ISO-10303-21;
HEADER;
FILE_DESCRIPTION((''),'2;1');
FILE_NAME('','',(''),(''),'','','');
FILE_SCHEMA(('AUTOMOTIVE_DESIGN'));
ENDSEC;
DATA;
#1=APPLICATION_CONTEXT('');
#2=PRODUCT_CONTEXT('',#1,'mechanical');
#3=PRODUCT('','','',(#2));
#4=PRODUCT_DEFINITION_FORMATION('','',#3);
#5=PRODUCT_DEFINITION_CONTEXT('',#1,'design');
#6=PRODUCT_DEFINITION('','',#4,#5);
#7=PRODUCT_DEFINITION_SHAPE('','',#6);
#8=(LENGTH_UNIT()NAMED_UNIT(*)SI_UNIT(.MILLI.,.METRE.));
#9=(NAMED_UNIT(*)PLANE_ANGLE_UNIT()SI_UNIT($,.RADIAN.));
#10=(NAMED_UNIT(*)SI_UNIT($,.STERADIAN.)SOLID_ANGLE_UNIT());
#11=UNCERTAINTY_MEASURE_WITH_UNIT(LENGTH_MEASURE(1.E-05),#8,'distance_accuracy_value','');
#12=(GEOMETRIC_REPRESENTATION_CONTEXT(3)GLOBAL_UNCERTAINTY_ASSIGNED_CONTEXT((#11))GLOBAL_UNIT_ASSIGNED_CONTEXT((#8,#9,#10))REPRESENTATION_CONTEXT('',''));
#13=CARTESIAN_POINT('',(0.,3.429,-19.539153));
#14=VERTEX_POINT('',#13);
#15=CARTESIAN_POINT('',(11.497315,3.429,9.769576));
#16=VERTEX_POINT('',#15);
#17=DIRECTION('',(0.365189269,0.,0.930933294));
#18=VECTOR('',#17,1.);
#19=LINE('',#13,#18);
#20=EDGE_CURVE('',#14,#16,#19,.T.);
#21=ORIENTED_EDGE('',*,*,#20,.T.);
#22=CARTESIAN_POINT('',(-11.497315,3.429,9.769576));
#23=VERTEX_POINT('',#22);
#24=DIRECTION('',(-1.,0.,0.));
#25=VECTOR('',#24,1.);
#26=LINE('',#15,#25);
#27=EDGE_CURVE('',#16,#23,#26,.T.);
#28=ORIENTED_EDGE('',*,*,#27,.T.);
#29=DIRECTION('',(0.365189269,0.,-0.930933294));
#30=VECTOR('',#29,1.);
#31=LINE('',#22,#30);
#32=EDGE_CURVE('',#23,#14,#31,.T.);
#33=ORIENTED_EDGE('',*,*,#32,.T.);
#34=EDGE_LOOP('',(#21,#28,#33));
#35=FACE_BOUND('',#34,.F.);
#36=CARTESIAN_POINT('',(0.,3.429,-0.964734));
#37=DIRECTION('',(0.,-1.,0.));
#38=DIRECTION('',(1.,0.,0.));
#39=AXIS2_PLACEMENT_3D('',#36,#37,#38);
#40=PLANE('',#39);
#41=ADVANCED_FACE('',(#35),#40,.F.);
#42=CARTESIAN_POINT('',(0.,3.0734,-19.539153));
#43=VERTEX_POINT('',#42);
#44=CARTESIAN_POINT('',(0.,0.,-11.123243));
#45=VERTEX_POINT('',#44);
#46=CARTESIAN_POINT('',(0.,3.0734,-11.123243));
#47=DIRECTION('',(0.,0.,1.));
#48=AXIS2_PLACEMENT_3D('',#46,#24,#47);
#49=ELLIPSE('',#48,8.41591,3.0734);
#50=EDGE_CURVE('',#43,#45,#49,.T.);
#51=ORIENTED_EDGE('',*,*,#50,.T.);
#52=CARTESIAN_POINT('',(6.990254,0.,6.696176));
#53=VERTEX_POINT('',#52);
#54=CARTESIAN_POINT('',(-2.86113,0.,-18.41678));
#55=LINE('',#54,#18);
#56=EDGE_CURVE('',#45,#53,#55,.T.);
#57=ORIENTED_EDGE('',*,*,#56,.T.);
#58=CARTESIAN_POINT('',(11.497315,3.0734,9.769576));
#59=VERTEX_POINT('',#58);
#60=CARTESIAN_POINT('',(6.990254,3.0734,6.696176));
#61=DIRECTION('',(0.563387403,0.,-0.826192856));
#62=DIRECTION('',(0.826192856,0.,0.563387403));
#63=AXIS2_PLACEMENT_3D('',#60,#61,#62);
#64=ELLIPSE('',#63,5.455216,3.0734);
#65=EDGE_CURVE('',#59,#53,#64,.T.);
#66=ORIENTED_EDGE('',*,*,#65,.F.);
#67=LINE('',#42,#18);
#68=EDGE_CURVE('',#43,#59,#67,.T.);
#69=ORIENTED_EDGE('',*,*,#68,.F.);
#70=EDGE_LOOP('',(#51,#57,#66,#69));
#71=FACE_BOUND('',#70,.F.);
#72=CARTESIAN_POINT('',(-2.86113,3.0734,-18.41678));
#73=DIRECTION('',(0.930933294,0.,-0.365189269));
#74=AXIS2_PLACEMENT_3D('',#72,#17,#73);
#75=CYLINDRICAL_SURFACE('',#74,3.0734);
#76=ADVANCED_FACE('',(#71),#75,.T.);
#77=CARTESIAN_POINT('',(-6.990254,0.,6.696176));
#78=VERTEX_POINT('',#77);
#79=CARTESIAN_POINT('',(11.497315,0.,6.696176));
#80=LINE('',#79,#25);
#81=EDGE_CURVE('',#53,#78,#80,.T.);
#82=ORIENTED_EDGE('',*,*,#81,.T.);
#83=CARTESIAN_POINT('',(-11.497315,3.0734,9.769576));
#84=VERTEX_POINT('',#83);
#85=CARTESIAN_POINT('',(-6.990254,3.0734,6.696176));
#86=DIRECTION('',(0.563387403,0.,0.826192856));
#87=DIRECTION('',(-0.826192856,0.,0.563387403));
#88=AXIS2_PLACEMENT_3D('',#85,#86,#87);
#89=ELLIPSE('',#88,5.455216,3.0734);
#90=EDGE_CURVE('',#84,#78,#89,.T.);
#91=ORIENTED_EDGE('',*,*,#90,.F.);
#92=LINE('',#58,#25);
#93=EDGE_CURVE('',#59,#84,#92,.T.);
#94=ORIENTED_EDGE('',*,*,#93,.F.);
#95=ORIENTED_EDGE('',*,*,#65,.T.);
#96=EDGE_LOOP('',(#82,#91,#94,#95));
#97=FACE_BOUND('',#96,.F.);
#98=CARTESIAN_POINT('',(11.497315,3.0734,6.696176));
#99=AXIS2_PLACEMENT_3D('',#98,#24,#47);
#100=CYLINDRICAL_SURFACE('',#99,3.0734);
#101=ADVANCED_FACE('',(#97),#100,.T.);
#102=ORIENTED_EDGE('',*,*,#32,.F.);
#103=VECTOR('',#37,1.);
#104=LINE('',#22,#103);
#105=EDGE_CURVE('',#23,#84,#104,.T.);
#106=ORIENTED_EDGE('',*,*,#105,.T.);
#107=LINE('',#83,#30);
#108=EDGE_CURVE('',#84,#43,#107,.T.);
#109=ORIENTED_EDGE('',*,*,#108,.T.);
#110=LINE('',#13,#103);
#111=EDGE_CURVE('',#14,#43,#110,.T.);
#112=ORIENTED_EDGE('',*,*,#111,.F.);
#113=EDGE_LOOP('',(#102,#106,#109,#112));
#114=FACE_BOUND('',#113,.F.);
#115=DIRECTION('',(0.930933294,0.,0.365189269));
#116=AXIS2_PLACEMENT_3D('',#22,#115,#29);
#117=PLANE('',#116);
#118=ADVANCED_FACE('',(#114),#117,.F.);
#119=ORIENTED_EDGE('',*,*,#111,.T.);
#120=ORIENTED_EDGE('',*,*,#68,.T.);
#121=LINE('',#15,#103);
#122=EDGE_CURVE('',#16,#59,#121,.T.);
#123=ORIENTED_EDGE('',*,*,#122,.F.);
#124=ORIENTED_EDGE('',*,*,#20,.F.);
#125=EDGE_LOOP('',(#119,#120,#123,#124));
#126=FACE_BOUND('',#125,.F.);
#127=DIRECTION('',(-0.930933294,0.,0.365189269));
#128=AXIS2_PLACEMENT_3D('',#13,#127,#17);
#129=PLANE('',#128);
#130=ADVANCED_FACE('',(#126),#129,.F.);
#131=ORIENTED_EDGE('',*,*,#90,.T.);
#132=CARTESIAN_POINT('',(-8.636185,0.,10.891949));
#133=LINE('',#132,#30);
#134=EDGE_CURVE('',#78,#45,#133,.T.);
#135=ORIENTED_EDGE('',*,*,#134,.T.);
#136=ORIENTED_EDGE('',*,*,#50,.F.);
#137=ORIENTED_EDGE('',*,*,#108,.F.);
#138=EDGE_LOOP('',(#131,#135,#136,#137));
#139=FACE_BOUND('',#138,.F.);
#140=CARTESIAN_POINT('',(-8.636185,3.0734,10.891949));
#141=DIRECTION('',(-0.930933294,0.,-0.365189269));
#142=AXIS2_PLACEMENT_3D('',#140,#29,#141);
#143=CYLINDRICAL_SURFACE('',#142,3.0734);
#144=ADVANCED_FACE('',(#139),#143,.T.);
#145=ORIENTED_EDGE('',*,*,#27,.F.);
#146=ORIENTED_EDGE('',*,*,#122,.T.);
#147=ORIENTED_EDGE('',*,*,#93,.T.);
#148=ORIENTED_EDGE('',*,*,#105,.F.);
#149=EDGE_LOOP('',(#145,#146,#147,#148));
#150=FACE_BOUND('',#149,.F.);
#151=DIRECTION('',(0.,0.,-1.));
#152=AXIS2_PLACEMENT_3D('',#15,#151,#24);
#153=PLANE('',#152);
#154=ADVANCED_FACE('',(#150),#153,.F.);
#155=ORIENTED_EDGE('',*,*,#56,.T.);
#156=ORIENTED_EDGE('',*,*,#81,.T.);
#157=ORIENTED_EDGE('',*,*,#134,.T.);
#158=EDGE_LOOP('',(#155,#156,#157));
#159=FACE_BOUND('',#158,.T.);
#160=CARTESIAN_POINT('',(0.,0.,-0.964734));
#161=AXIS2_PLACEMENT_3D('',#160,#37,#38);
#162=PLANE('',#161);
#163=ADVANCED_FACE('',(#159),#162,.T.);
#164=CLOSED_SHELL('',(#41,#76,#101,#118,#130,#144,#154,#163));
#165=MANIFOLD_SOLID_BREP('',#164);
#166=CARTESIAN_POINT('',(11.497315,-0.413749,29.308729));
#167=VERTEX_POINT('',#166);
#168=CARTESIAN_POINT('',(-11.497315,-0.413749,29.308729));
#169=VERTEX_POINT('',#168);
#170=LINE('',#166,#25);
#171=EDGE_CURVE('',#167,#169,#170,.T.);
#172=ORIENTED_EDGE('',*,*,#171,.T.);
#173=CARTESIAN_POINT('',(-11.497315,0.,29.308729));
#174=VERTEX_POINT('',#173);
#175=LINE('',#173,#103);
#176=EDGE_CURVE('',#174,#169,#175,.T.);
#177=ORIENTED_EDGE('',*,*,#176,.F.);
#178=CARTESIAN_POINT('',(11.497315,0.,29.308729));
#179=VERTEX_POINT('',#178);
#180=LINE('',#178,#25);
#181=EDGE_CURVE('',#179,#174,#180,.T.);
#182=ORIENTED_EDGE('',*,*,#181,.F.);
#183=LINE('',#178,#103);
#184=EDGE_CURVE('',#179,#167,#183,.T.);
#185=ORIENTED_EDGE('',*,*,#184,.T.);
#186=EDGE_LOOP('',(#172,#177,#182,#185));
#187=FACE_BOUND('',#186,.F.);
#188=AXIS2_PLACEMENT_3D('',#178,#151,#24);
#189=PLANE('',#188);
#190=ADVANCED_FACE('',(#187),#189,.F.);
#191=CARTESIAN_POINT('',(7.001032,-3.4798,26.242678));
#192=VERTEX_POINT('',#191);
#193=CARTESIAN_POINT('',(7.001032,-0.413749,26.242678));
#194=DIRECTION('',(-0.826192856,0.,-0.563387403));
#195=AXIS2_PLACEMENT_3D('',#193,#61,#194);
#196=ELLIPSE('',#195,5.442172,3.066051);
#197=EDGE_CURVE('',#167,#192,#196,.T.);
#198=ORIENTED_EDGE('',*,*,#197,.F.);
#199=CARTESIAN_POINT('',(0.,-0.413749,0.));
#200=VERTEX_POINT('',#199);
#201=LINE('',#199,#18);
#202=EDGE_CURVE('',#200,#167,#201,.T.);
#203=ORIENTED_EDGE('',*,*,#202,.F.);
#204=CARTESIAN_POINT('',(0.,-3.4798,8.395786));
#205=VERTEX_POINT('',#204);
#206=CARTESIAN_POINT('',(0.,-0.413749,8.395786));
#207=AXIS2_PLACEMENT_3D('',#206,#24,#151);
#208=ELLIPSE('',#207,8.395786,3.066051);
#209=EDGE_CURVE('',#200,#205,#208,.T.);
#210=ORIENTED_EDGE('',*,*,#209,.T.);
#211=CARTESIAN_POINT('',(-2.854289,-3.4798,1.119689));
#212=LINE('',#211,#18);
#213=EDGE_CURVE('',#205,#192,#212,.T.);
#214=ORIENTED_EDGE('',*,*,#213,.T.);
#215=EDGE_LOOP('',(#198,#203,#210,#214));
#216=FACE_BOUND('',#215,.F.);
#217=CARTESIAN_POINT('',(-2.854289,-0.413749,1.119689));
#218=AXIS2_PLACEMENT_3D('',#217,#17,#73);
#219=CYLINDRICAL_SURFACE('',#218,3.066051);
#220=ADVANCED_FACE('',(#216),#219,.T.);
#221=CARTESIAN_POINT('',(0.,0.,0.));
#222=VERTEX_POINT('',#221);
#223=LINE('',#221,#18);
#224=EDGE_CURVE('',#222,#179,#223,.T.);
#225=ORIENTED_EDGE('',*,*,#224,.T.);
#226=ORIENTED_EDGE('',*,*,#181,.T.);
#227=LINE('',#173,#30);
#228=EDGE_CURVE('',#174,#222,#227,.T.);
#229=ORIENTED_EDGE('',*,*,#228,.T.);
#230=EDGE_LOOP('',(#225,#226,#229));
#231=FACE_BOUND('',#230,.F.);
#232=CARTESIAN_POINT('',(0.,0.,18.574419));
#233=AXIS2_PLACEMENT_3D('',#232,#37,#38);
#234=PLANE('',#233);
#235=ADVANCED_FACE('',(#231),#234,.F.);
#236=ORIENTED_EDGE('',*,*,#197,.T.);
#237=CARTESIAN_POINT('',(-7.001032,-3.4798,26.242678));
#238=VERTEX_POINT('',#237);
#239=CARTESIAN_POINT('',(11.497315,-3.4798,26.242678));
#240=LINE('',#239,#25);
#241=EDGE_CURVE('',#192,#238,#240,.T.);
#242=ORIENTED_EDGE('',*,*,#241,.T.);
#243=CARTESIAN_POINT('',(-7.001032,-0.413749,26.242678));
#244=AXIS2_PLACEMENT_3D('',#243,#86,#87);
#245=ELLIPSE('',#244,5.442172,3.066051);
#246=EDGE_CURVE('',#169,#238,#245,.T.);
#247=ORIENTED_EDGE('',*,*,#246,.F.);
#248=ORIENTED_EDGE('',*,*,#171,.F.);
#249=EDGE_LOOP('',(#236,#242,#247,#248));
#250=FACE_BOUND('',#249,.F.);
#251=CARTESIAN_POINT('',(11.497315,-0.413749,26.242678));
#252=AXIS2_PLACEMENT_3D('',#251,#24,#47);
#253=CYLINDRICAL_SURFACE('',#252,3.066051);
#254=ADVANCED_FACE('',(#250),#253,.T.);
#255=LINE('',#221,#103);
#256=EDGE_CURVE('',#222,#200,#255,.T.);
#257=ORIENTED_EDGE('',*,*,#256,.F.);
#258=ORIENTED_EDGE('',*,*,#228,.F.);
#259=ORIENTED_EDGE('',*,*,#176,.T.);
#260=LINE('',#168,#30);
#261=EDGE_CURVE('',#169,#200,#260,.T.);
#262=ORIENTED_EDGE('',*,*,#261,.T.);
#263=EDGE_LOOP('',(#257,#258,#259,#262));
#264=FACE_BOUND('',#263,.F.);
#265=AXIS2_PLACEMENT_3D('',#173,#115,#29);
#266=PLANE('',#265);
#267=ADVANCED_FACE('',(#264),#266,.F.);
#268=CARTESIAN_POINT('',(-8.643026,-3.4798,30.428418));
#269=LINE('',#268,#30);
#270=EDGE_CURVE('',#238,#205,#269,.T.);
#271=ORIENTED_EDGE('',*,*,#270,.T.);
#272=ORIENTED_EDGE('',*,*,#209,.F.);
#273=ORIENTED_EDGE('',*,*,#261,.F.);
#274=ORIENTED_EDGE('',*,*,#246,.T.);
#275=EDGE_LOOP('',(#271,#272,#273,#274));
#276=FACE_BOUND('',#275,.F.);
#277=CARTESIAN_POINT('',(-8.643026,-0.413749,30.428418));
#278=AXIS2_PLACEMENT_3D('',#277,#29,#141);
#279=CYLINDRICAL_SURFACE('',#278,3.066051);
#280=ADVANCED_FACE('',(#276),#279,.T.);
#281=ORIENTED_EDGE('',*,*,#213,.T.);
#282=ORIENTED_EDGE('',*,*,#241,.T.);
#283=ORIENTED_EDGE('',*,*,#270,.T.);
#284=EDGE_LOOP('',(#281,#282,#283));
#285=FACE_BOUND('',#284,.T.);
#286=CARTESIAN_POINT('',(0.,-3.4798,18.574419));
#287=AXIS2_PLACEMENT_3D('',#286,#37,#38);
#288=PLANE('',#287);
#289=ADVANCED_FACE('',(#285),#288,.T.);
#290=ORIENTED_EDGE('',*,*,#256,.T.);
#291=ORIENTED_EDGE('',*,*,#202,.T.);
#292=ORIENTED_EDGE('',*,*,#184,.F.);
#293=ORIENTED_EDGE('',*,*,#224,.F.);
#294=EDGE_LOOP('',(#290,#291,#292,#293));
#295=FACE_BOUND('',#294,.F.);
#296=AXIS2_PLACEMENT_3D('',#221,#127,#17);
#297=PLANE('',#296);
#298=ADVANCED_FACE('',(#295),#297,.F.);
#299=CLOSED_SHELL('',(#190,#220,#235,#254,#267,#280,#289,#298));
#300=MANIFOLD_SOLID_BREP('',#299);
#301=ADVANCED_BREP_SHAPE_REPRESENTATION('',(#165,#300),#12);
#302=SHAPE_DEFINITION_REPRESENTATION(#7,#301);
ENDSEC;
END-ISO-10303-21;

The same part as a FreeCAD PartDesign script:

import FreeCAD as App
import Part
import Sketcher

V = App.Vector
Q = App.Units.Quantity


def edges_at(feature, points):
    """Names of the edges that pass closest to the given points."""
    edges = feature.Shape.Edges
    near = lambda p: min(range(len(edges)), key=lambda i: edges[i].distToShape(Part.Vertex(*p))[0])
    return sorted({f"Edge{near(p) + 1}" for p in points})


def add_polygon(sketch, points):
    """Adds a closed chain of lines whose ends are joined by coincident constraints."""
    first, n = sketch.GeometryCount, len(points)
    for a, b in zip(points, points[1:] + points[:1]):
        sketch.addGeometry(Part.LineSegment(App.Vector(*a, 0), App.Vector(*b, 0)), False)
    for i in range(n):
        sketch.addConstraint(Sketcher.Constraint("Coincident", first + i, 2, first + (i + 1) % n, 1))

doc = App.newDocument("Part")
body = doc.addObject("PartDesign::Body", "Body")

sketch1 = body.newObject("Sketcher::SketchObject", "Sketch")
sketch1.AttachmentSupport = (doc.getObject("XZ_Plane"), [""])
sketch1.MapMode = "FlatFace"
add_polygon(sketch1, [(11, 29), (-11, 29), (0, 0)])
sketch1.addConstraint([
    Sketcher.Constraint("Horizontal", 0),
    Sketcher.Constraint("Coincident", 1, 2, -1, 1),
    Sketcher.Constraint("Equal", 1, 2),
    Sketcher.Constraint("DistanceX", 0, 2, 0, 1, Q("22.99463 mm")),
    Sketcher.Constraint("DistanceY", -1, 1, 0, 2, Q("29.308729 mm")),
])
pad1 = body.newObject("PartDesign::Pad", "Pad")
pad1.Profile = sketch1
pad1.Length = Q("0.137 in")
doc.recompute()

fillet = body.newObject("PartDesign::Fillet", "Fillet")
fillet.Base = (pad1, edges_at(pad1, [(0, -3.48, 29.309), (-5.749, -3.48, 14.654), (5.749, -3.48, 14.654)]))
fillet.Radius = 3.066051
body2 = doc.addObject("PartDesign::Body", "Body001")

sketch2 = body2.newObject("Sketcher::SketchObject", "Sketch001")
sketch2.AttachmentSupport = (doc.getObject("XZ_Plane001"), [""])
sketch2.MapMode = "FlatFace"
sketch2.AttachmentOffset = App.Placement(V(0, 0, -0.135 * 25.4), App.Rotation())
add_polygon(sketch2, [(11, 10), (-11, 10), (0, -20)])
sketch2.addConstraint([
    Sketcher.Constraint("Horizontal", 0),
    Sketcher.Constraint("PointOnObject", 1, 2, -2),
    Sketcher.Constraint("Equal", 1, 2),
    Sketcher.Constraint("DistanceX", 0, 2, 0, 1, Q("22.99463 mm")),
    Sketcher.Constraint("DistanceY", 1, 2, 0, 2, Q("29.308729 mm")),
    Sketcher.Constraint("DistanceY", -1, 1, 0, 2, Q("9.769576 mm")),
])
pad2 = body2.newObject("PartDesign::Pad", "Pad001")
pad2.Profile = sketch2
pad2.Length = Q("0.135 in")
doc.recompute()

fillet2 = body2.newObject("PartDesign::Fillet", "Fillet001")
fillet2.Base = (pad2, edges_at(pad2, [(5.749, 0, -4.885), (0, 0, 9.77), (-5.749, 0, -4.885)]))
fillet2.Radius = Q("0.121 in")

doc.recompute()
